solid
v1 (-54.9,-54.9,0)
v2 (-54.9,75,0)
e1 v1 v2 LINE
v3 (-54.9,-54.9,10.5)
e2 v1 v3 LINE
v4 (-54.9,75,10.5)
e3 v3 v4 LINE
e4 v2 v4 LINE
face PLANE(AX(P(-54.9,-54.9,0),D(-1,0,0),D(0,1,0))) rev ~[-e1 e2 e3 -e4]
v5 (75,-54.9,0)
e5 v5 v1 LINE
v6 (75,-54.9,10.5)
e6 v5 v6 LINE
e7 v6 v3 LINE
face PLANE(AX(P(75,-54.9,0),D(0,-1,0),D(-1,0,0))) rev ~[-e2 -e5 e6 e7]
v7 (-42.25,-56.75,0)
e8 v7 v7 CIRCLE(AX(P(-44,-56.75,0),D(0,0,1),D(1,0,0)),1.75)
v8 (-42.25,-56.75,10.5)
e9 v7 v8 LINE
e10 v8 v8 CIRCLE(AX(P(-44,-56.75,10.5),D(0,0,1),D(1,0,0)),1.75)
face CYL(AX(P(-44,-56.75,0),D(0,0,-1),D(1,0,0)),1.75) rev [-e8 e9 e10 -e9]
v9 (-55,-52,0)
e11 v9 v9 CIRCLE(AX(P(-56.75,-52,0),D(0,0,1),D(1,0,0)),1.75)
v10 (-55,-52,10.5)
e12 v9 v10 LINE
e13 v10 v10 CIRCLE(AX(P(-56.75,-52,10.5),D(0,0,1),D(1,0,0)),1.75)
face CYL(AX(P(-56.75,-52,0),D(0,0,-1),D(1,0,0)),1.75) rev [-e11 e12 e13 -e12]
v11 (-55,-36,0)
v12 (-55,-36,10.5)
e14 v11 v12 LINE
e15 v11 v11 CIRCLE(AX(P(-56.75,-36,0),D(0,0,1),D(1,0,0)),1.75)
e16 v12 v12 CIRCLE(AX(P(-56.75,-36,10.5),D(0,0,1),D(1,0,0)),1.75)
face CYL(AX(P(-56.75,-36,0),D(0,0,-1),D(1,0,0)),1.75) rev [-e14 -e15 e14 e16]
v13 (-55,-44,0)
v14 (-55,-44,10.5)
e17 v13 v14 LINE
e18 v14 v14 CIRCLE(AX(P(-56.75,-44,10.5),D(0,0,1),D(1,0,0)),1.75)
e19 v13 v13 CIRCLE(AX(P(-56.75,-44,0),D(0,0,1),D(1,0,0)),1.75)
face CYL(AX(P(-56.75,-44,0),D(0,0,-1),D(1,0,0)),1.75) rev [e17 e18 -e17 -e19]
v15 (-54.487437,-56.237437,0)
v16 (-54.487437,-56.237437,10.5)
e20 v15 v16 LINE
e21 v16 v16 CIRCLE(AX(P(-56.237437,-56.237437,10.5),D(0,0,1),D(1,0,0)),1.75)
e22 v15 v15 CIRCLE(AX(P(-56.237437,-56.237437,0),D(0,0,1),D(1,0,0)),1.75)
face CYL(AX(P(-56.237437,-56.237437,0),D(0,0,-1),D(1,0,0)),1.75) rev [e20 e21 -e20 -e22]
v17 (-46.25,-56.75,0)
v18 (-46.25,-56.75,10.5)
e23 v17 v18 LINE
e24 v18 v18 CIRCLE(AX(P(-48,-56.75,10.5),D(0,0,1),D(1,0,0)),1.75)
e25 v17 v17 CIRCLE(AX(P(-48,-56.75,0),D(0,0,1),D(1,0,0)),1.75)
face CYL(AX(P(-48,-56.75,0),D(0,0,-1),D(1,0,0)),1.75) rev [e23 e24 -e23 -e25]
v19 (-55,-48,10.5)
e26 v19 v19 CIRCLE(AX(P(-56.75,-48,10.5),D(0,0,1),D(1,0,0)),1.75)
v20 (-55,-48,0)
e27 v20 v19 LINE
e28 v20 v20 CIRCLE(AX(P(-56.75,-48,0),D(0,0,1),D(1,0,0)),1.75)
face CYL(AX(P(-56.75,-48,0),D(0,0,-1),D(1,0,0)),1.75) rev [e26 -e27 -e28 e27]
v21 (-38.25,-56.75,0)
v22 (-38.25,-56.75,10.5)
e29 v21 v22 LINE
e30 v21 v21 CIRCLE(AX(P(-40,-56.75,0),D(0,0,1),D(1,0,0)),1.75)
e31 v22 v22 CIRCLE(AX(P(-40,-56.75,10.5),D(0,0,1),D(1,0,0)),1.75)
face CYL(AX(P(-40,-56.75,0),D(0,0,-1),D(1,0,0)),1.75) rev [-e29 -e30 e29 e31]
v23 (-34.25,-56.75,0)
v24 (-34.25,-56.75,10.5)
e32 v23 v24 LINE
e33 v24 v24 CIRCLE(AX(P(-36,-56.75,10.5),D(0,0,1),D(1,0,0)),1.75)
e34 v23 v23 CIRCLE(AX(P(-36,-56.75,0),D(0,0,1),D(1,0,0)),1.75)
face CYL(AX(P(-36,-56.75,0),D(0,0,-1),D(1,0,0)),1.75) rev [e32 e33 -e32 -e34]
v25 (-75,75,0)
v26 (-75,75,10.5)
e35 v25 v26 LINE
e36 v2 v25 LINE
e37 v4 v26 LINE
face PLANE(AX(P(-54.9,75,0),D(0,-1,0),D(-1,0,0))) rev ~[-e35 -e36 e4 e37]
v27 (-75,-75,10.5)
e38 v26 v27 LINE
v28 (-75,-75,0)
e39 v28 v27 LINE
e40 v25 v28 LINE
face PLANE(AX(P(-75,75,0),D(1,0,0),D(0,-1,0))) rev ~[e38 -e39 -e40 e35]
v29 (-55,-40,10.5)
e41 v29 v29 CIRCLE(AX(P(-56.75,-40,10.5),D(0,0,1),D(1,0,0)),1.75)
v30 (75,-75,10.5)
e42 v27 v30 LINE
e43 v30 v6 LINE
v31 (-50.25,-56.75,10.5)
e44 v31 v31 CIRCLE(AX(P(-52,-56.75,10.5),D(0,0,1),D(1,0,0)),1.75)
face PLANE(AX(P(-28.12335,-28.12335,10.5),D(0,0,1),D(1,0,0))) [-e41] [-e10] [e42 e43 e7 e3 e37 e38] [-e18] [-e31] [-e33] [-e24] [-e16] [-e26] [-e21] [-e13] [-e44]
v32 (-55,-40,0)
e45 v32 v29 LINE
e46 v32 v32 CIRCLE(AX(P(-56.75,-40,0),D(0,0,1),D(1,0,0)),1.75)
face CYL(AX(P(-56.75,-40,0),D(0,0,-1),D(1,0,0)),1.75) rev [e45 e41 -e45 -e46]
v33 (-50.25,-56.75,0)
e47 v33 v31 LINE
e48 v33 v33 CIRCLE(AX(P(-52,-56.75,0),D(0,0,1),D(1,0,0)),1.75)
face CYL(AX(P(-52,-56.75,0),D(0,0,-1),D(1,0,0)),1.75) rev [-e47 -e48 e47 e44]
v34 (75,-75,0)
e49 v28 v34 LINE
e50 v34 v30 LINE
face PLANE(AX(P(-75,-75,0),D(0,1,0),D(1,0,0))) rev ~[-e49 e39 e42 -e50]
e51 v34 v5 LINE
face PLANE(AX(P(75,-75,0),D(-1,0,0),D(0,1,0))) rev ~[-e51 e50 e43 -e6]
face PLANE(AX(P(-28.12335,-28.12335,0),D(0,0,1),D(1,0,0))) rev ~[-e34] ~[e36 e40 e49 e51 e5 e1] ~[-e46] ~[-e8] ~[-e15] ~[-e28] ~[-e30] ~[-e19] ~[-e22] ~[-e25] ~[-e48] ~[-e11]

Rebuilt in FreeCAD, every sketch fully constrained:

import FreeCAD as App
import Part
import Sketcher

V = App.Vector
Q = App.Units.Quantity

doc = App.newDocument("Part")
params = doc.addObject("Spreadsheet::Sheet", "Params")
for row, (alias, value) in enumerate([
    ("sketch1_diameter", "3.5 mm"),
    ("sketch1_width", "150 mm"),
    ("sketch1_width2", "129.9 mm"),
    ("pad1_length", "10.5 mm"),
], start=1):
    params.set(f"A{row}", alias)
    params.set(f"B{row}", "=" + value)
    params.setAlias(f"B{row}", alias)

body = doc.addObject("PartDesign::Body", "Body")

sketch1 = body.newObject("Sketcher::SketchObject", "Sketch")
sketch1.AttachmentSupport = (doc.getObject("XY_Plane"), [""])
sketch1.MapMode = "FlatFace"
sketch1.addGeometry(Part.LineSegment(V(-75, -75, 0), V(75, -75, 0)), False)
sketch1.addGeometry(Part.LineSegment(V(75, -75, 0), V(75, -54.9, 0)), False)
sketch1.addGeometry(Part.LineSegment(V(75, -54.9, 0), V(-54.9, -54.9, 0)), False)
sketch1.addGeometry(Part.LineSegment(V(-54.9, -54.9, 0), V(-54.9, 75, 0)), False)
sketch1.addGeometry(Part.LineSegment(V(-54.9, 75, 0), V(-75, 75, 0)), False)
sketch1.addGeometry(Part.LineSegment(V(-75, 75, 0), V(-75, -75, 0)), False)
sketch1.addGeometry(Part.Circle(V(-56.2, -56.2, 0), V(0, 0, 1), 1.8), False)
sketch1.addGeometry(Part.Circle(V(-52, -56.8, 0), V(0, 0, 1), 1.8), False)
sketch1.addGeometry(Part.Circle(V(-48, -56.8, 0), V(0, 0, 1), 1.8), False)
sketch1.addGeometry(Part.Circle(V(-56.8, -52, 0), V(0, 0, 1), 1.8), False)
sketch1.addGeometry(Part.Circle(V(-56.8, -48, 0), V(0, 0, 1), 1.8), False)
sketch1.addGeometry(Part.Circle(V(-44, -56.8, 0), V(0, 0, 1), 1.8), False)
sketch1.addGeometry(Part.Circle(V(-40, -56.8, 0), V(0, 0, 1), 1.8), False)
sketch1.addGeometry(Part.Circle(V(-36, -56.8, 0), V(0, 0, 1), 1.8), False)
sketch1.addGeometry(Part.Circle(V(-56.8, -44, 0), V(0, 0, 1), 1.8), False)
sketch1.addGeometry(Part.Circle(V(-56.8, -40, 0), V(0, 0, 1), 1.8), False)
sketch1.addGeometry(Part.Circle(V(-56.8, -36, 0), V(0, 0, 1), 1.8), False)
sketch1.addConstraint(Sketcher.Constraint("Coincident", 0, 2, 1, 1))
sketch1.addConstraint(Sketcher.Constraint("Coincident", 1, 2, 2, 1))
sketch1.addConstraint(Sketcher.Constraint("Coincident", 2, 2, 3, 1))
sketch1.addConstraint(Sketcher.Constraint("Coincident", 3, 2, 4, 1))
sketch1.addConstraint(Sketcher.Constraint("Coincident", 4, 2, 5, 1))
sketch1.addConstraint(Sketcher.Constraint("Coincident", 5, 2, 0, 1))
sketch1.addConstraint(Sketcher.Constraint("Horizontal", 0))
sketch1.addConstraint(Sketcher.Constraint("Vertical", 1))
sketch1.addConstraint(Sketcher.Constraint("Horizontal", 2))
sketch1.addConstraint(Sketcher.Constraint("Vertical", 3))
sketch1.addConstraint(Sketcher.Constraint("Horizontal", 4))
sketch1.addConstraint(Sketcher.Constraint("Vertical", 5))
sketch1.addConstraint(Sketcher.Constraint("Equal", 6, 7))
sketch1.addConstraint(Sketcher.Constraint("Equal", 7, 8))
sketch1.addConstraint(Sketcher.Constraint("Equal", 8, 9))
sketch1.addConstraint(Sketcher.Constraint("Equal", 9, 10))
sketch1.addConstraint(Sketcher.Constraint("Equal", 10, 11))
sketch1.addConstraint(Sketcher.Constraint("Equal", 11, 12))
sketch1.addConstraint(Sketcher.Constraint("Equal", 12, 13))
sketch1.addConstraint(Sketcher.Constraint("Equal", 13, 14))
sketch1.addConstraint(Sketcher.Constraint("Equal", 14, 15))
sketch1.addConstraint(Sketcher.Constraint("Equal", 15, 16))
sketch1.addConstraint(Sketcher.Constraint("Symmetric", 0, 2, 4, 2, -1, 1))
sketch1.addConstraint(Sketcher.Constraint("Horizontal", 7, 3, 8, 3))
sketch1.addConstraint(Sketcher.Constraint("Horizontal", 8, 3, 11, 3))
sketch1.addConstraint(Sketcher.Constraint("Horizontal", 11, 3, 12, 3))
sketch1.addConstraint(Sketcher.Constraint("Horizontal", 12, 3, 13, 3))
sketch1.addConstraint(Sketcher.Constraint("Vertical", 9, 3, 10, 3))
sketch1.addConstraint(Sketcher.Constraint("Vertical", 10, 3, 14, 3))
sketch1.addConstraint(Sketcher.Constraint("Vertical", 14, 3, 15, 3))
sketch1.addConstraint(Sketcher.Constraint("Vertical", 15, 3, 16, 3))
sketch1.addConstraint(Sketcher.Constraint("Equal", 4, 1))
sketch1.addConstraint(Sketcher.Constraint("Equal", 2, 3))
sketch1.addConstraint(Sketcher.Constraint("Diameter", 6, Q("3.5 mm")))
sketch1.addConstraint(Sketcher.Constraint("DistanceX", 0, 1, 0, 2, Q("150 mm")))
sketch1.addConstraint(Sketcher.Constraint("DistanceX", 2, 2, 2, 1, Q("129.9 mm")))
sketch1.addConstraint(Sketcher.Constraint("DistanceX", 7, 3, -1, 1, Q("52 mm")))
sketch1.addConstraint(Sketcher.Constraint("DistanceX", 8, 3, -1, 1, Q("48 mm")))
sketch1.addConstraint(Sketcher.Constraint("DistanceY", 9, 3, -1, 1, Q("52 mm")))
sketch1.addConstraint(Sketcher.Constraint("DistanceY", 10, 3, -1, 1, Q("48 mm")))
sketch1.addConstraint(Sketcher.Constraint("DistanceX", 11, 3, -1, 1, Q("44 mm")))
sketch1.addConstraint(Sketcher.Constraint("DistanceX", 12, 3, -1, 1, Q("40 mm")))
sketch1.addConstraint(Sketcher.Constraint("DistanceX", 13, 3, -1, 1, Q("36 mm")))
sketch1.addConstraint(Sketcher.Constraint("DistanceY", 14, 3, -1, 1, Q("44 mm")))
sketch1.addConstraint(Sketcher.Constraint("DistanceY", 15, 3, -1, 1, Q("40 mm")))
sketch1.addConstraint(Sketcher.Constraint("DistanceY", 16, 3, -1, 1, Q("36 mm")))
sketch1.addConstraint(Sketcher.Constraint("DistanceY", 7, 3, -1, 1, Q("56.75 mm")))
sketch1.addConstraint(Sketcher.Constraint("DistanceX", 9, 3, -1, 1, Q("56.75 mm")))
sketch1.addConstraint(Sketcher.Constraint("DistanceX", 6, 3, -1, 1, Q("56.237437 mm")))
sketch1.addConstraint(Sketcher.Constraint("DistanceY", 6, 3, -1, 1, Q("56.237437 mm")))
sketch1.setExpression("Constraints[33]", "Params.sketch1_diameter")
sketch1.setExpression("Constraints[34]", "Params.sketch1_width")
sketch1.setExpression("Constraints[35]", "Params.sketch1_width2")
pad1 = body.newObject("PartDesign::Pad", "Pad")
pad1.Profile = sketch1
pad1.setExpression("Length", "Params.pad1_length")

doc.recompute()
